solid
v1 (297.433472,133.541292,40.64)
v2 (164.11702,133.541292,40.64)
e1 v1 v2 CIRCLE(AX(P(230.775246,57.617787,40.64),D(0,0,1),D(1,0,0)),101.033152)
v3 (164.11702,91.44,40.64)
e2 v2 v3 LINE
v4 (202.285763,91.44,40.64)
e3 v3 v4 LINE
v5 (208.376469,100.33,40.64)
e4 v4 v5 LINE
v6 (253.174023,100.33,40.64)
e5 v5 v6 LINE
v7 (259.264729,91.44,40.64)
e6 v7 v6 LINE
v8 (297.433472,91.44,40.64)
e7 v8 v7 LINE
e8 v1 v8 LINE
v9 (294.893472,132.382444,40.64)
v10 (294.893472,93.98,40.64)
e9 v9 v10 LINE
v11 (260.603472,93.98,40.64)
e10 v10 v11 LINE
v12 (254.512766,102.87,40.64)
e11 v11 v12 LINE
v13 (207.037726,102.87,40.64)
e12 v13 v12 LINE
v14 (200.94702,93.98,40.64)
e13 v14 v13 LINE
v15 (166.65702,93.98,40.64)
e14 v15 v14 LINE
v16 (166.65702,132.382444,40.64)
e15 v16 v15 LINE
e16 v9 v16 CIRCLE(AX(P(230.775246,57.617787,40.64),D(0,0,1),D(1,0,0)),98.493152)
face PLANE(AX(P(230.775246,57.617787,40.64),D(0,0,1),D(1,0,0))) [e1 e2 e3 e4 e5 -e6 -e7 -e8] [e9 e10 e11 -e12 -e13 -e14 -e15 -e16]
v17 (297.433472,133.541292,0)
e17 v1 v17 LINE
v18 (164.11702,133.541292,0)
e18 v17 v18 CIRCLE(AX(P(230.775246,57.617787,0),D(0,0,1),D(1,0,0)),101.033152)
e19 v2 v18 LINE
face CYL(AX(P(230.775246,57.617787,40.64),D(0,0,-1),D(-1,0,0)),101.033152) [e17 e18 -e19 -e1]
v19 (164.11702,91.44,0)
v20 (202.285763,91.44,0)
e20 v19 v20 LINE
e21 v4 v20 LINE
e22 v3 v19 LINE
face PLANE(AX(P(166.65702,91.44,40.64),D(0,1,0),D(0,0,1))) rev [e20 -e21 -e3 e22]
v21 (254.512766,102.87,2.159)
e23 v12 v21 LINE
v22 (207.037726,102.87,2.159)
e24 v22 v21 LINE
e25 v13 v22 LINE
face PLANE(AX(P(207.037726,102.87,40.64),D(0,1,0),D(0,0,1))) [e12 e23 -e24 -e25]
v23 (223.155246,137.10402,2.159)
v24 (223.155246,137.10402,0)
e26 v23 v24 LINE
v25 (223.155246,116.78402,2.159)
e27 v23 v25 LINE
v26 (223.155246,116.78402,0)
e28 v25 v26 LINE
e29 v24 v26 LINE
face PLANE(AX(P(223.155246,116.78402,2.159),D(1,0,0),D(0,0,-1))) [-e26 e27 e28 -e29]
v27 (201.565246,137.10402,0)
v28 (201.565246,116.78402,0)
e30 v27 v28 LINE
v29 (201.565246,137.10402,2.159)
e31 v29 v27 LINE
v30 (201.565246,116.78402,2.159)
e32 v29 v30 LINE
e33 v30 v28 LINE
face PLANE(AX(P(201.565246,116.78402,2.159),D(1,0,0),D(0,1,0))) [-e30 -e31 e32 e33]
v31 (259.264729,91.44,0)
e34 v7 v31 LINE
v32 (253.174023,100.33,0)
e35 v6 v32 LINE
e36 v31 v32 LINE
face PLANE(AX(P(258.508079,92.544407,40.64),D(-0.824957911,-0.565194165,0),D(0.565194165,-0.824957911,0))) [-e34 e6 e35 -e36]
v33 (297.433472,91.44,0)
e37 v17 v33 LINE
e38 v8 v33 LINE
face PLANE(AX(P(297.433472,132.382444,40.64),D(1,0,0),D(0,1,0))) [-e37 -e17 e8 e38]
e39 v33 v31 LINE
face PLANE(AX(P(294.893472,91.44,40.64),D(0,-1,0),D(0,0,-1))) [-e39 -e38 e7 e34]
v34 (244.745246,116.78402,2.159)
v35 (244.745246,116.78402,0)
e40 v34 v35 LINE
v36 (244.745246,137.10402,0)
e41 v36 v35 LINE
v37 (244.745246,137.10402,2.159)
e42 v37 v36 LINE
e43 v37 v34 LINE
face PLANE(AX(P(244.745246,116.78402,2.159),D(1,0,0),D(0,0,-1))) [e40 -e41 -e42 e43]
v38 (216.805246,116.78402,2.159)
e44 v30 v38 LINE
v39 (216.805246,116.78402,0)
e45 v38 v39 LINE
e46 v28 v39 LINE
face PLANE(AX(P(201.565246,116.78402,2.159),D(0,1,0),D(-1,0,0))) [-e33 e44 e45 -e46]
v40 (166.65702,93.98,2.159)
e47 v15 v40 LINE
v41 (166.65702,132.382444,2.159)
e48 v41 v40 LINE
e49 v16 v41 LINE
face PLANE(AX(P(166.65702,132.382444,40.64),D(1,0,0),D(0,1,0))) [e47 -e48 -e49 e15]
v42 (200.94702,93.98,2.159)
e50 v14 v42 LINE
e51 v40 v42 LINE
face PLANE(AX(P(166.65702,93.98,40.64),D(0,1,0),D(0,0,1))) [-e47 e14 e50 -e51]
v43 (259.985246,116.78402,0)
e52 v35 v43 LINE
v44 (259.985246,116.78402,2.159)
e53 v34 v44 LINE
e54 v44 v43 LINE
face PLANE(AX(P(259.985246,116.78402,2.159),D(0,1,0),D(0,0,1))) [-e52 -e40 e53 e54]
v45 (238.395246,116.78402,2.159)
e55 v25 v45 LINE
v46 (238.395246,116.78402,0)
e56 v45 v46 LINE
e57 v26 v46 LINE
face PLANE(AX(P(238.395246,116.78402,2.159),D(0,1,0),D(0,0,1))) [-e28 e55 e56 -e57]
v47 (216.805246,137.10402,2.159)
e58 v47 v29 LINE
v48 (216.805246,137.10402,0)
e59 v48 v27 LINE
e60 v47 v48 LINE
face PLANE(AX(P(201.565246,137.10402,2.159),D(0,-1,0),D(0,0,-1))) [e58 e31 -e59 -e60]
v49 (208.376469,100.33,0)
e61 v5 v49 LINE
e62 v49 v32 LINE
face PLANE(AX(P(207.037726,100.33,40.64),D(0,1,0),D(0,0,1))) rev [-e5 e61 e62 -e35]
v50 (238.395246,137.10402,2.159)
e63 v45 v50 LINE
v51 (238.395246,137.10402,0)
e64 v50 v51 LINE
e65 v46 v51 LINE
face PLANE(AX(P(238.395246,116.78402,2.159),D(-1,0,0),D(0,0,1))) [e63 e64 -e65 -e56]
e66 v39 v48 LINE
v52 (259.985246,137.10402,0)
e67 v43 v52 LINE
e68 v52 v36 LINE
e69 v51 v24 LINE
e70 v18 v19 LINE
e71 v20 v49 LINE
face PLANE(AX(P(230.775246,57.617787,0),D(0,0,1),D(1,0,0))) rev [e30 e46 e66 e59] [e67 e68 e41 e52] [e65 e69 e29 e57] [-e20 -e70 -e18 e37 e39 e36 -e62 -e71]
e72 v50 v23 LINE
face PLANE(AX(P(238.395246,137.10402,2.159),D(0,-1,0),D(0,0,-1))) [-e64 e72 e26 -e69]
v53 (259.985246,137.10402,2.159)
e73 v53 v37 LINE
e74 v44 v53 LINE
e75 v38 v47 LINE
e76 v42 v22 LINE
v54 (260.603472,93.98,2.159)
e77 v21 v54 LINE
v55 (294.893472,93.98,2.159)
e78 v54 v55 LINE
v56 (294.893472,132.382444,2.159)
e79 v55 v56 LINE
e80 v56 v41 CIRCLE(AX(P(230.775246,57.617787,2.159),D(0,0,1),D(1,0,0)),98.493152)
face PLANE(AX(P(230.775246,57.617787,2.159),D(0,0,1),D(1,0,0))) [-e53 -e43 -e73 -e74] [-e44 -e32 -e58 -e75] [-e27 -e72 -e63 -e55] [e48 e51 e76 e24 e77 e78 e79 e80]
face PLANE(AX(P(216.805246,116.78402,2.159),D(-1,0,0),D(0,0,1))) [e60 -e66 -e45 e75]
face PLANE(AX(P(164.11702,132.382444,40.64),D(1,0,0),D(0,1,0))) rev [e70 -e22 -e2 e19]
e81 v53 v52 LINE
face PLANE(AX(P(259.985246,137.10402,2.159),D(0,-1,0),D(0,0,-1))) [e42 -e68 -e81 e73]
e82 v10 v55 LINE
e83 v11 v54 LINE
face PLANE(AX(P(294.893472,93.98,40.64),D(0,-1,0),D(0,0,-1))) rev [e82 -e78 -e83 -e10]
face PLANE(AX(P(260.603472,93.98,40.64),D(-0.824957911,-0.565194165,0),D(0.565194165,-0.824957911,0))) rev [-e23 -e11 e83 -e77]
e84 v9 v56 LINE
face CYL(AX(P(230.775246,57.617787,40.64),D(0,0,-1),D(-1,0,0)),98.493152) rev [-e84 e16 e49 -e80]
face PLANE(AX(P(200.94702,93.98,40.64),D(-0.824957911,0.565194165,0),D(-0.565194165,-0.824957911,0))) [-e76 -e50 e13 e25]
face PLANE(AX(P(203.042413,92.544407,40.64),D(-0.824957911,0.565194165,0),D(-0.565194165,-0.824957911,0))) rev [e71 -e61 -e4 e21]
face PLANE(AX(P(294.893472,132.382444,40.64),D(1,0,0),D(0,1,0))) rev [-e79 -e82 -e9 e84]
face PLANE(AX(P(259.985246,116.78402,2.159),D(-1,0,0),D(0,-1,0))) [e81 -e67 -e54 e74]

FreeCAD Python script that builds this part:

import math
import FreeCAD as App
import Part
import Sketcher

V = App.Vector
Q = App.Units.Quantity

doc = App.newDocument("Part")
body = doc.addObject("PartDesign::Body", "Body")

# Sketch on XY plane
sketch1 = doc.addObject("Sketcher::SketchObject", "Sketch")
body.addObject(sketch1)
sketch1.AttachmentSupport = (doc.XY_Plane, [""])
sketch1.MapMode = "FlatFace"
sketch1.addGeometry([
    Part.LineSegment(V(167, 132, 0), V(167, 94, 0)),  # 0
    Part.LineSegment(V(167, 94, 0), V(201, 94, 0)),  # 1
    Part.LineSegment(V(201, 94, 0), V(207, 103, 0)),  # 2
    Part.LineSegment(V(207, 103, 0), V(255, 103, 0)),  # 3
    Part.LineSegment(V(255, 103, 0), V(261, 94, 0)),  # 4
    Part.LineSegment(V(261, 94, 0), V(295, 94, 0)),  # 5
    Part.LineSegment(V(295, 94, 0), V(295, 132, 0)),  # 6
    Part.ArcOfCircle(Part.Circle(V(231, 58, 0), V(0, 0, 1), 98), math.radians(49), math.radians(131)),  # 7
    Part.LineSegment(V(217, 117, 0), V(202, 117, 0)),  # 8
    Part.LineSegment(V(202, 117, 0), V(202, 137, 0)),  # 9
    Part.LineSegment(V(202, 137, 0), V(217, 137, 0)),  # 10
    Part.LineSegment(V(217, 137, 0), V(217, 117, 0)),  # 11
    Part.LineSegment(V(238, 117, 0), V(223, 117, 0)),  # 12
    Part.LineSegment(V(223, 117, 0), V(223, 137, 0)),  # 13
    Part.LineSegment(V(223, 137, 0), V(238, 137, 0)),  # 14
    Part.LineSegment(V(238, 137, 0), V(238, 117, 0)),  # 15
    Part.LineSegment(V(260, 117, 0), V(245, 117, 0)),  # 16
    Part.LineSegment(V(245, 117, 0), V(245, 137, 0)),  # 17
    Part.LineSegment(V(245, 137, 0), V(260, 137, 0)),  # 18
    Part.LineSegment(V(260, 137, 0), V(260, 117, 0)),  # 19
], False)
sketch1.addConstraint([
    Sketcher.Constraint("Coincident", 0, 2, 1, 1),
    Sketcher.Constraint("Coincident", 1, 2, 2, 1),
    Sketcher.Constraint("Coincident", 2, 2, 3, 1),
    Sketcher.Constraint("Coincident", 3, 2, 4, 1),
    Sketcher.Constraint("Coincident", 4, 2, 5, 1),
    Sketcher.Constraint("Coincident", 5, 2, 6, 1),
    Sketcher.Constraint("Coincident", 6, 2, 7, 1),
    Sketcher.Constraint("Coincident", 7, 2, 0, 1),
    Sketcher.Constraint("Coincident", 8, 2, 9, 1),
    Sketcher.Constraint("Coincident", 9, 2, 10, 1),
    Sketcher.Constraint("Coincident", 10, 2, 11, 1),
    Sketcher.Constraint("Coincident", 11, 2, 8, 1),
    Sketcher.Constraint("Coincident", 12, 2, 13, 1),
    Sketcher.Constraint("Coincident", 13, 2, 14, 1),
    Sketcher.Constraint("Coincident", 14, 2, 15, 1),
    Sketcher.Constraint("Coincident", 15, 2, 12, 1),
    Sketcher.Constraint("Coincident", 16, 2, 17, 1),
    Sketcher.Constraint("Coincident", 17, 2, 18, 1),
    Sketcher.Constraint("Coincident", 18, 2, 19, 1),
    Sketcher.Constraint("Coincident", 19, 2, 16, 1),
    Sketcher.Constraint("Vertical", 0),
    Sketcher.Constraint("Horizontal", 1),
    Sketcher.Constraint("Horizontal", 3),
    Sketcher.Constraint("Horizontal", 5),
    Sketcher.Constraint("Vertical", 6),
    Sketcher.Constraint("Horizontal", 8),
    Sketcher.Constraint("Vertical", 9),
    Sketcher.Constraint("Horizontal", 10),
    Sketcher.Constraint("Vertical", 11),
    Sketcher.Constraint("Horizontal", 12),
    Sketcher.Constraint("Vertical", 13),
    Sketcher.Constraint("Horizontal", 14),
    Sketcher.Constraint("Vertical", 15),
    Sketcher.Constraint("Horizontal", 16),
    Sketcher.Constraint("Vertical", 17),
    Sketcher.Constraint("Horizontal", 18),
    Sketcher.Constraint("Vertical", 19),
    Sketcher.Constraint("Horizontal", 1, 2, 4, 2),
    Sketcher.Constraint("Horizontal", 6, 2, 7, 2),
    Sketcher.Constraint("Horizontal", 11, 2, 12, 2),
    Sketcher.Constraint("Horizontal", 10, 2, 13, 2),
    Sketcher.Constraint("Horizontal", 15, 2, 16, 2),
    Sketcher.Constraint("Horizontal", 14, 2, 17, 2),
    Sketcher.Constraint("Equal", 1, 5),
    Sketcher.Constraint("Equal", 10, 12),
    Sketcher.Constraint("Equal", 14, 16),
    Sketcher.Constraint("Equal", 2, 4),
    Sketcher.Constraint("DistanceX", 8, 2, 8, 1, Q("0.6 in")),
    Sketcher.Constraint("DistanceY", 9, 1, 9, 2, Q("0.8 in")),
    Sketcher.Constraint("DistanceX", 1, 1, 1, 2, Q("1.35 in")),
    Sketcher.Constraint("DistanceY", -1, 1, 0, 2, Q("3.7 in")),
    Sketcher.Constraint("DistanceX", 10, 2, 17, 2, Q("1.1 in")),
    Sketcher.Constraint("DistanceY", -1, 1, 2, 2, Q("4.05 in")),
    Sketcher.Constraint("DistanceX", 11, 2, 12, 2, Q("0.25 in")),
    Sketcher.Constraint("Radius", 7, Q("98.493152 mm")),
    Sketcher.Constraint("DistanceX", -1, 1, 0, 2, Q("6.5613 in")),
    Sketcher.Constraint("DistanceX", 3, 1, 3, 2, Q("47.47504 mm")),
    Sketcher.Constraint("DistanceY", 0, 2, 0, 1, Q("38.402444 mm")),
    Sketcher.Constraint("DistanceY", -1, 1, 8, 2, Q("116.78402 mm")),
    Sketcher.Constraint("DistanceX", 8, 2, 2, 2, Q("5.47248 mm")),
    Sketcher.Constraint("Distance", 2, Q("10.776307 mm")),
])
pad1 = doc.addObject("PartDesign::Pad", "Pad")
body.addObject(pad1)
pad1.Profile = sketch1
pad1.Length = Q("0.085 in")

# Sketch on XY plane
sketch2 = doc.addObject("Sketcher::SketchObject", "Sketch001")
body.addObject(sketch2)
sketch2.AttachmentSupport = (doc.XY_Plane, [""])
sketch2.MapMode = "FlatFace"
sketch2.addGeometry([
    Part.LineSegment(V(164.11702, 133.541292, 0), V(164.11702, 91.44, 0)),  # 0
    Part.LineSegment(V(164.11702, 91.44, 0), V(202.285763, 91.44, 0)),  # 1
    Part.LineSegment(V(202.285763, 91.44, 0), V(208.376469, 100.33, 0)),  # 2
    Part.LineSegment(V(208.376469, 100.33, 0), V(253.174023, 100.33, 0)),  # 3
    Part.LineSegment(V(253.174023, 100.33, 0), V(259.264729, 91.44, 0)),  # 4
    Part.LineSegment(V(259.264729, 91.44, 0), V(297.433472, 91.44, 0)),  # 5
    Part.LineSegment(V(297.433472, 91.44, 0), V(297.433472, 133.541292, 0)),  # 6
    Part.ArcOfCircle(Part.Circle(V(230.775246, 57.617787, 0), V(0, 0, 1), 101.033152), math.radians(48.71798), math.radians(131.28202)),  # 7
    Part.LineSegment(V(166.65702, 93.98, 0), V(166.65702, 132.382444, 0)),  # 8
    Part.ArcOfCircle(Part.Circle(V(230.775246, 57.617787, 0), V(0, 0, 1), 98.493152), math.radians(49.383585), math.radians(130.616415)),  # 9
    Part.LineSegment(V(294.893472, 132.382444, 0), V(294.893472, 93.98, 0)),  # 10
    Part.LineSegment(V(294.893472, 93.98, 0), V(260.603472, 93.98, 0)),  # 11
    Part.LineSegment(V(260.603472, 93.98, 0), V(254.512766, 102.87, 0)),  # 12
    Part.LineSegment(V(254.512766, 102.87, 0), V(207.037726, 102.87, 0)),  # 13
    Part.LineSegment(V(207.037726, 102.87, 0), V(200.94702, 93.98, 0)),  # 14
    Part.LineSegment(V(200.94702, 93.98, 0), V(166.65702, 93.98, 0)),  # 15
], False)
sketch2.addConstraint([
    Sketcher.Constraint("Coincident", 0, 2, 1, 1),
    Sketcher.Constraint("Coincident", 1, 2, 2, 1),
    Sketcher.Constraint("Coincident", 2, 2, 3, 1),
    Sketcher.Constraint("Coincident", 3, 2, 4, 1),
    Sketcher.Constraint("Coincident", 4, 2, 5, 1),
    Sketcher.Constraint("Coincident", 5, 2, 6, 1),
    Sketcher.Constraint("Coincident", 6, 2, 7, 1),
    Sketcher.Constraint("Coincident", 7, 2, 0, 1),
    Sketcher.Constraint("Coincident", 8, 2, 9, 2),
    Sketcher.Constraint("Coincident", 9, 1, 10, 1),
    Sketcher.Constraint("Coincident", 10, 2, 11, 1),
    Sketcher.Constraint("Coincident", 11, 2, 12, 1),
    Sketcher.Constraint("Coincident", 12, 2, 13, 1),
    Sketcher.Constraint("Coincident", 13, 2, 14, 1),
    Sketcher.Constraint("Coincident", 14, 2, 15, 1),
    Sketcher.Constraint("Coincident", 15, 2, 8, 1),
    Sketcher.Constraint("Vertical", 0),
    Sketcher.Constraint("Horizontal", 1),
    Sketcher.Constraint("Horizontal", 3),
    Sketcher.Constraint("Horizontal", 5),
    Sketcher.Constraint("Vertical", 6),
    Sketcher.Constraint("Vertical", 8),
    Sketcher.Constraint("Vertical", 10),
    Sketcher.Constraint("Horizontal", 11),
    Sketcher.Constraint("Horizontal", 13),
    Sketcher.Constraint("Horizontal", 15),
    Sketcher.Constraint("Coincident", 9, 3, 7, 3),
    Sketcher.Constraint("Parallel", 4, 12),
    Sketcher.Constraint("Parallel", 2, 14),
    Sketcher.Constraint("Horizontal", 1, 2, 4, 2),
    Sketcher.Constraint("Horizontal", 6, 2, 7, 2),
    Sketcher.Constraint("Horizontal", 8, 2, 9, 1),
    Sketcher.Constraint("Horizontal", 11, 2, 14, 2),
    Sketcher.Constraint("Equal", 1, 5),
    Sketcher.Constraint("Equal", 11, 15),
    Sketcher.Constraint("Equal", 2, 4),
    Sketcher.Constraint("Equal", 4, 12),
    Sketcher.Constraint("DistanceX", 11, 2, 11, 1, Q("1.35 in")),
    Sketcher.Constraint("DistanceY", -1, 1, 0, 2, Q("3.6 in")),
    Sketcher.Constraint("DistanceY", -1, 1, 10, 2, Q("3.7 in")),
    Sketcher.Constraint("DistanceX", 7, 2, 8, 2, Q("0.1 in")),
    Sketcher.Constraint("DistanceY", -1, 1, 2, 2, Q("3.95 in")),
    Sketcher.Constraint("Radius", 7, Q("101.033152 mm")),
    Sketcher.Constraint("Radius", 9, Q("98.493152 mm")),
    Sketcher.Constraint("DistanceX", -1, 1, 0, 2, Q("6.4613 in")),
    Sketcher.Constraint("DistanceX", 13, 2, 13, 1, Q("47.47504 mm")),
    Sketcher.Constraint("DistanceX", 1, 1, 1, 2, Q("38.168743 mm")),
    Sketcher.Constraint("DistanceY", 0, 2, 0, 1, Q("42.101292 mm")),
    Sketcher.Constraint("DistanceY", 8, 1, 8, 2, Q("38.402444 mm")),
])
pad2 = doc.addObject("PartDesign::Pad", "Pad001")
body.addObject(pad2)
pad2.Profile = sketch2
pad2.Length = Q("1.6 in")

doc.recompute()
